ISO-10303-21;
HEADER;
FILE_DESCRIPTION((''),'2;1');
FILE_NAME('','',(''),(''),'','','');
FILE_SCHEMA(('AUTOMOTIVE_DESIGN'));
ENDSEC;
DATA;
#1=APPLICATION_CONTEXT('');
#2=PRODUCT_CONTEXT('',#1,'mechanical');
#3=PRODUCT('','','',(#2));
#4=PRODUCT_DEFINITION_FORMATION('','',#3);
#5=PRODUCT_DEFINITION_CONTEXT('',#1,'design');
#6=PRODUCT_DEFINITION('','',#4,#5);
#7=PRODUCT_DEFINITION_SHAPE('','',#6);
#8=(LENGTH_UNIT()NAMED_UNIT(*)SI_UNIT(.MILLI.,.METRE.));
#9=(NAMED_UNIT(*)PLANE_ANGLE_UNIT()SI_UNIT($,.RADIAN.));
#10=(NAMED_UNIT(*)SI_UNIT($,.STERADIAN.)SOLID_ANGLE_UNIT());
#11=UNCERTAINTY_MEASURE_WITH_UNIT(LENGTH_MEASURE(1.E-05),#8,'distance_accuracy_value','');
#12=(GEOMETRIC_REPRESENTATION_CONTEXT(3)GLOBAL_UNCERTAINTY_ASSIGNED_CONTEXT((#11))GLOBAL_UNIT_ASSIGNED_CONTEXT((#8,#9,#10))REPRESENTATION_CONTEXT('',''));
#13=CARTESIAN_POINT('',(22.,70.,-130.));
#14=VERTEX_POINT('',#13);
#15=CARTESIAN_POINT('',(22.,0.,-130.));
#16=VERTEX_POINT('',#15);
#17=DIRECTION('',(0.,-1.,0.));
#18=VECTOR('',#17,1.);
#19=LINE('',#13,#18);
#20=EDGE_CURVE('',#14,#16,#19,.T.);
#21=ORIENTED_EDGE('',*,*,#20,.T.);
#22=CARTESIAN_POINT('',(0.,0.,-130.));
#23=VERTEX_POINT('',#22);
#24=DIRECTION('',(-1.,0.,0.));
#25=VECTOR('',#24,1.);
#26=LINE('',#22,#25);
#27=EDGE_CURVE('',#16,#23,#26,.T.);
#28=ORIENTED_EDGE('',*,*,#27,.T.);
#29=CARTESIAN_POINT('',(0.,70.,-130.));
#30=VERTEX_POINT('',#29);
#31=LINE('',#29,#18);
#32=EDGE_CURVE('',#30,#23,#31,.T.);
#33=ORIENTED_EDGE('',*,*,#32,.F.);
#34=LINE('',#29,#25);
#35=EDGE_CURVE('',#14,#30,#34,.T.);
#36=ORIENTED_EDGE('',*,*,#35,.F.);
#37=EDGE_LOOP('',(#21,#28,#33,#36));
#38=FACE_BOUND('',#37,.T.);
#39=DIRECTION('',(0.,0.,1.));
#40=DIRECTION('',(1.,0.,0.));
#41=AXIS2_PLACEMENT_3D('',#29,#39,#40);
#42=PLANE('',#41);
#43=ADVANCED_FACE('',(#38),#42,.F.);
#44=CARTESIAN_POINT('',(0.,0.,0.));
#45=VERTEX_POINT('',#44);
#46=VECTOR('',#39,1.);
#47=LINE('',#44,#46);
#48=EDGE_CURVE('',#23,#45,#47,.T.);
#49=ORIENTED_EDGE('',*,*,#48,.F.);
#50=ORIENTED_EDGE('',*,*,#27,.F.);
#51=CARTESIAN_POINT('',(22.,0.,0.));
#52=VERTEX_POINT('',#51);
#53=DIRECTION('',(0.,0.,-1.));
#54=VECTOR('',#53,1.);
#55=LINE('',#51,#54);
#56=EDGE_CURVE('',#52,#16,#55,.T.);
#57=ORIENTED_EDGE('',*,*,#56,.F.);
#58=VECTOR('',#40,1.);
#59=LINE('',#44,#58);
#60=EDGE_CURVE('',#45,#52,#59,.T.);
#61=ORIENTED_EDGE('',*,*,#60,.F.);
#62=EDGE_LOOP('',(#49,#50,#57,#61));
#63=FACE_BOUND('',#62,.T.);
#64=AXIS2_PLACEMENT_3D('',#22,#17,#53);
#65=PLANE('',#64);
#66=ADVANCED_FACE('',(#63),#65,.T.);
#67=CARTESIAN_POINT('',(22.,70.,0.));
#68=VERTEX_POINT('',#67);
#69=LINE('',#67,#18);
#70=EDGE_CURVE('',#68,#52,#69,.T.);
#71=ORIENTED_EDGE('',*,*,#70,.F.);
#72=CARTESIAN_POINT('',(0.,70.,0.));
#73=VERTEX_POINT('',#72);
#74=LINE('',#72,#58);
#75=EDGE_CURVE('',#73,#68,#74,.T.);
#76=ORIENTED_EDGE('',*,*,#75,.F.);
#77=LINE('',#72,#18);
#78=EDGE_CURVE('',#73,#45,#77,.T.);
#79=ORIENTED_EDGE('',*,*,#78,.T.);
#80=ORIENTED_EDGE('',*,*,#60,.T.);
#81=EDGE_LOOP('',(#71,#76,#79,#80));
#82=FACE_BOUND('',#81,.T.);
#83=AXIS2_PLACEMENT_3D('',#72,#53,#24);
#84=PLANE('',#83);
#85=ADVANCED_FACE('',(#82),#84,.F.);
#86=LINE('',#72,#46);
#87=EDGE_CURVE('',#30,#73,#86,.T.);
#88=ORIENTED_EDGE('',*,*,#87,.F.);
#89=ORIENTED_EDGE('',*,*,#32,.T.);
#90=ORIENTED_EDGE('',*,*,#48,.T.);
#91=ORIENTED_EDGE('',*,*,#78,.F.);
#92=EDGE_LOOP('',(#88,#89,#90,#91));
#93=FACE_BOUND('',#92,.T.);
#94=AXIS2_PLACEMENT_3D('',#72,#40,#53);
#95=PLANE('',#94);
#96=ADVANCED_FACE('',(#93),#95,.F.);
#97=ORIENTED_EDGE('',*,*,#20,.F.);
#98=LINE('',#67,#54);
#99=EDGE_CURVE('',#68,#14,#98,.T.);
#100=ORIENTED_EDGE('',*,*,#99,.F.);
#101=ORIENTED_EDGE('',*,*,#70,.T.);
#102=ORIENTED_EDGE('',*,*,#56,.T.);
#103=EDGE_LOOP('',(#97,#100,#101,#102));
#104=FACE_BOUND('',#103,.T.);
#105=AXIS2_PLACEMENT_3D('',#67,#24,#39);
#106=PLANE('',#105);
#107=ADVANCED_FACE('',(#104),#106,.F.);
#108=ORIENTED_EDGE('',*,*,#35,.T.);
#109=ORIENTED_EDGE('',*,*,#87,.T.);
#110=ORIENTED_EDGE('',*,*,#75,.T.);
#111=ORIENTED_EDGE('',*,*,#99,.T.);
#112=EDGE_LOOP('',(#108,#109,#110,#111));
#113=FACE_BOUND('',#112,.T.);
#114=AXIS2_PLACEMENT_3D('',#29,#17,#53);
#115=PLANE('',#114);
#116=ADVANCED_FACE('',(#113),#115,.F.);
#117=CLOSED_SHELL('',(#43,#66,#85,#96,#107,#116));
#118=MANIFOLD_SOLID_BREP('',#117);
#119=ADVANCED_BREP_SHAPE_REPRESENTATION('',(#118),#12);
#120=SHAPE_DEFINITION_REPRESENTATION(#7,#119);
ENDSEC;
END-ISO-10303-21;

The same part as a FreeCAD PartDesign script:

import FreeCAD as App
import Part
import Sketcher
Q = App.Units.Quantity

doc = App.newDocument("Part")
body = doc.addObject("PartDesign::Body", "Body")

# Sketch on XZ plane
sketch1 = body.newObject("Sketcher::SketchObject", "Sketch")
sketch1.AttachmentSupport = (doc.getObject("XZ_Plane"), [""])
sketch1.MapMode = "FlatFace"
sketch1.addGeometry([
    Part.LineSegment(App.Vector(0, -130, 0), App.Vector(0, 0, 0)),
    Part.LineSegment(App.Vector(0, 0, 0), App.Vector(22, 0, 0)),
    Part.LineSegment(App.Vector(22, 0, 0), App.Vector(22, -130, 0)),
    Part.LineSegment(App.Vector(22, -130, 0), App.Vector(0, -130, 0)),
], False)
sketch1.addConstraint([
    Sketcher.Constraint("Coincident", 0, 2, 1, 1),
    Sketcher.Constraint("Coincident", 1, 2, 2, 1),
    Sketcher.Constraint("Coincident", 2, 2, 3, 1),
    Sketcher.Constraint("Coincident", 3, 2, 0, 1),
    Sketcher.Constraint("Vertical", 0),
    Sketcher.Constraint("Horizontal", 1),
    Sketcher.Constraint("Vertical", 2),
    Sketcher.Constraint("Horizontal", 3),
    Sketcher.Constraint("Coincident", 0, 2, -1, 1),
    Sketcher.Constraint("DistanceX", 1, 1, 1, 2, Q("22 mm")),
    Sketcher.Constraint("DistanceY", 0, 1, 0, 2, Q("130 mm")),
])
pad1 = body.newObject("PartDesign::Pad", "Pad")
pad1.Profile = sketch1
pad1.Length = 70
pad1.Reversed = True

doc.recompute()
